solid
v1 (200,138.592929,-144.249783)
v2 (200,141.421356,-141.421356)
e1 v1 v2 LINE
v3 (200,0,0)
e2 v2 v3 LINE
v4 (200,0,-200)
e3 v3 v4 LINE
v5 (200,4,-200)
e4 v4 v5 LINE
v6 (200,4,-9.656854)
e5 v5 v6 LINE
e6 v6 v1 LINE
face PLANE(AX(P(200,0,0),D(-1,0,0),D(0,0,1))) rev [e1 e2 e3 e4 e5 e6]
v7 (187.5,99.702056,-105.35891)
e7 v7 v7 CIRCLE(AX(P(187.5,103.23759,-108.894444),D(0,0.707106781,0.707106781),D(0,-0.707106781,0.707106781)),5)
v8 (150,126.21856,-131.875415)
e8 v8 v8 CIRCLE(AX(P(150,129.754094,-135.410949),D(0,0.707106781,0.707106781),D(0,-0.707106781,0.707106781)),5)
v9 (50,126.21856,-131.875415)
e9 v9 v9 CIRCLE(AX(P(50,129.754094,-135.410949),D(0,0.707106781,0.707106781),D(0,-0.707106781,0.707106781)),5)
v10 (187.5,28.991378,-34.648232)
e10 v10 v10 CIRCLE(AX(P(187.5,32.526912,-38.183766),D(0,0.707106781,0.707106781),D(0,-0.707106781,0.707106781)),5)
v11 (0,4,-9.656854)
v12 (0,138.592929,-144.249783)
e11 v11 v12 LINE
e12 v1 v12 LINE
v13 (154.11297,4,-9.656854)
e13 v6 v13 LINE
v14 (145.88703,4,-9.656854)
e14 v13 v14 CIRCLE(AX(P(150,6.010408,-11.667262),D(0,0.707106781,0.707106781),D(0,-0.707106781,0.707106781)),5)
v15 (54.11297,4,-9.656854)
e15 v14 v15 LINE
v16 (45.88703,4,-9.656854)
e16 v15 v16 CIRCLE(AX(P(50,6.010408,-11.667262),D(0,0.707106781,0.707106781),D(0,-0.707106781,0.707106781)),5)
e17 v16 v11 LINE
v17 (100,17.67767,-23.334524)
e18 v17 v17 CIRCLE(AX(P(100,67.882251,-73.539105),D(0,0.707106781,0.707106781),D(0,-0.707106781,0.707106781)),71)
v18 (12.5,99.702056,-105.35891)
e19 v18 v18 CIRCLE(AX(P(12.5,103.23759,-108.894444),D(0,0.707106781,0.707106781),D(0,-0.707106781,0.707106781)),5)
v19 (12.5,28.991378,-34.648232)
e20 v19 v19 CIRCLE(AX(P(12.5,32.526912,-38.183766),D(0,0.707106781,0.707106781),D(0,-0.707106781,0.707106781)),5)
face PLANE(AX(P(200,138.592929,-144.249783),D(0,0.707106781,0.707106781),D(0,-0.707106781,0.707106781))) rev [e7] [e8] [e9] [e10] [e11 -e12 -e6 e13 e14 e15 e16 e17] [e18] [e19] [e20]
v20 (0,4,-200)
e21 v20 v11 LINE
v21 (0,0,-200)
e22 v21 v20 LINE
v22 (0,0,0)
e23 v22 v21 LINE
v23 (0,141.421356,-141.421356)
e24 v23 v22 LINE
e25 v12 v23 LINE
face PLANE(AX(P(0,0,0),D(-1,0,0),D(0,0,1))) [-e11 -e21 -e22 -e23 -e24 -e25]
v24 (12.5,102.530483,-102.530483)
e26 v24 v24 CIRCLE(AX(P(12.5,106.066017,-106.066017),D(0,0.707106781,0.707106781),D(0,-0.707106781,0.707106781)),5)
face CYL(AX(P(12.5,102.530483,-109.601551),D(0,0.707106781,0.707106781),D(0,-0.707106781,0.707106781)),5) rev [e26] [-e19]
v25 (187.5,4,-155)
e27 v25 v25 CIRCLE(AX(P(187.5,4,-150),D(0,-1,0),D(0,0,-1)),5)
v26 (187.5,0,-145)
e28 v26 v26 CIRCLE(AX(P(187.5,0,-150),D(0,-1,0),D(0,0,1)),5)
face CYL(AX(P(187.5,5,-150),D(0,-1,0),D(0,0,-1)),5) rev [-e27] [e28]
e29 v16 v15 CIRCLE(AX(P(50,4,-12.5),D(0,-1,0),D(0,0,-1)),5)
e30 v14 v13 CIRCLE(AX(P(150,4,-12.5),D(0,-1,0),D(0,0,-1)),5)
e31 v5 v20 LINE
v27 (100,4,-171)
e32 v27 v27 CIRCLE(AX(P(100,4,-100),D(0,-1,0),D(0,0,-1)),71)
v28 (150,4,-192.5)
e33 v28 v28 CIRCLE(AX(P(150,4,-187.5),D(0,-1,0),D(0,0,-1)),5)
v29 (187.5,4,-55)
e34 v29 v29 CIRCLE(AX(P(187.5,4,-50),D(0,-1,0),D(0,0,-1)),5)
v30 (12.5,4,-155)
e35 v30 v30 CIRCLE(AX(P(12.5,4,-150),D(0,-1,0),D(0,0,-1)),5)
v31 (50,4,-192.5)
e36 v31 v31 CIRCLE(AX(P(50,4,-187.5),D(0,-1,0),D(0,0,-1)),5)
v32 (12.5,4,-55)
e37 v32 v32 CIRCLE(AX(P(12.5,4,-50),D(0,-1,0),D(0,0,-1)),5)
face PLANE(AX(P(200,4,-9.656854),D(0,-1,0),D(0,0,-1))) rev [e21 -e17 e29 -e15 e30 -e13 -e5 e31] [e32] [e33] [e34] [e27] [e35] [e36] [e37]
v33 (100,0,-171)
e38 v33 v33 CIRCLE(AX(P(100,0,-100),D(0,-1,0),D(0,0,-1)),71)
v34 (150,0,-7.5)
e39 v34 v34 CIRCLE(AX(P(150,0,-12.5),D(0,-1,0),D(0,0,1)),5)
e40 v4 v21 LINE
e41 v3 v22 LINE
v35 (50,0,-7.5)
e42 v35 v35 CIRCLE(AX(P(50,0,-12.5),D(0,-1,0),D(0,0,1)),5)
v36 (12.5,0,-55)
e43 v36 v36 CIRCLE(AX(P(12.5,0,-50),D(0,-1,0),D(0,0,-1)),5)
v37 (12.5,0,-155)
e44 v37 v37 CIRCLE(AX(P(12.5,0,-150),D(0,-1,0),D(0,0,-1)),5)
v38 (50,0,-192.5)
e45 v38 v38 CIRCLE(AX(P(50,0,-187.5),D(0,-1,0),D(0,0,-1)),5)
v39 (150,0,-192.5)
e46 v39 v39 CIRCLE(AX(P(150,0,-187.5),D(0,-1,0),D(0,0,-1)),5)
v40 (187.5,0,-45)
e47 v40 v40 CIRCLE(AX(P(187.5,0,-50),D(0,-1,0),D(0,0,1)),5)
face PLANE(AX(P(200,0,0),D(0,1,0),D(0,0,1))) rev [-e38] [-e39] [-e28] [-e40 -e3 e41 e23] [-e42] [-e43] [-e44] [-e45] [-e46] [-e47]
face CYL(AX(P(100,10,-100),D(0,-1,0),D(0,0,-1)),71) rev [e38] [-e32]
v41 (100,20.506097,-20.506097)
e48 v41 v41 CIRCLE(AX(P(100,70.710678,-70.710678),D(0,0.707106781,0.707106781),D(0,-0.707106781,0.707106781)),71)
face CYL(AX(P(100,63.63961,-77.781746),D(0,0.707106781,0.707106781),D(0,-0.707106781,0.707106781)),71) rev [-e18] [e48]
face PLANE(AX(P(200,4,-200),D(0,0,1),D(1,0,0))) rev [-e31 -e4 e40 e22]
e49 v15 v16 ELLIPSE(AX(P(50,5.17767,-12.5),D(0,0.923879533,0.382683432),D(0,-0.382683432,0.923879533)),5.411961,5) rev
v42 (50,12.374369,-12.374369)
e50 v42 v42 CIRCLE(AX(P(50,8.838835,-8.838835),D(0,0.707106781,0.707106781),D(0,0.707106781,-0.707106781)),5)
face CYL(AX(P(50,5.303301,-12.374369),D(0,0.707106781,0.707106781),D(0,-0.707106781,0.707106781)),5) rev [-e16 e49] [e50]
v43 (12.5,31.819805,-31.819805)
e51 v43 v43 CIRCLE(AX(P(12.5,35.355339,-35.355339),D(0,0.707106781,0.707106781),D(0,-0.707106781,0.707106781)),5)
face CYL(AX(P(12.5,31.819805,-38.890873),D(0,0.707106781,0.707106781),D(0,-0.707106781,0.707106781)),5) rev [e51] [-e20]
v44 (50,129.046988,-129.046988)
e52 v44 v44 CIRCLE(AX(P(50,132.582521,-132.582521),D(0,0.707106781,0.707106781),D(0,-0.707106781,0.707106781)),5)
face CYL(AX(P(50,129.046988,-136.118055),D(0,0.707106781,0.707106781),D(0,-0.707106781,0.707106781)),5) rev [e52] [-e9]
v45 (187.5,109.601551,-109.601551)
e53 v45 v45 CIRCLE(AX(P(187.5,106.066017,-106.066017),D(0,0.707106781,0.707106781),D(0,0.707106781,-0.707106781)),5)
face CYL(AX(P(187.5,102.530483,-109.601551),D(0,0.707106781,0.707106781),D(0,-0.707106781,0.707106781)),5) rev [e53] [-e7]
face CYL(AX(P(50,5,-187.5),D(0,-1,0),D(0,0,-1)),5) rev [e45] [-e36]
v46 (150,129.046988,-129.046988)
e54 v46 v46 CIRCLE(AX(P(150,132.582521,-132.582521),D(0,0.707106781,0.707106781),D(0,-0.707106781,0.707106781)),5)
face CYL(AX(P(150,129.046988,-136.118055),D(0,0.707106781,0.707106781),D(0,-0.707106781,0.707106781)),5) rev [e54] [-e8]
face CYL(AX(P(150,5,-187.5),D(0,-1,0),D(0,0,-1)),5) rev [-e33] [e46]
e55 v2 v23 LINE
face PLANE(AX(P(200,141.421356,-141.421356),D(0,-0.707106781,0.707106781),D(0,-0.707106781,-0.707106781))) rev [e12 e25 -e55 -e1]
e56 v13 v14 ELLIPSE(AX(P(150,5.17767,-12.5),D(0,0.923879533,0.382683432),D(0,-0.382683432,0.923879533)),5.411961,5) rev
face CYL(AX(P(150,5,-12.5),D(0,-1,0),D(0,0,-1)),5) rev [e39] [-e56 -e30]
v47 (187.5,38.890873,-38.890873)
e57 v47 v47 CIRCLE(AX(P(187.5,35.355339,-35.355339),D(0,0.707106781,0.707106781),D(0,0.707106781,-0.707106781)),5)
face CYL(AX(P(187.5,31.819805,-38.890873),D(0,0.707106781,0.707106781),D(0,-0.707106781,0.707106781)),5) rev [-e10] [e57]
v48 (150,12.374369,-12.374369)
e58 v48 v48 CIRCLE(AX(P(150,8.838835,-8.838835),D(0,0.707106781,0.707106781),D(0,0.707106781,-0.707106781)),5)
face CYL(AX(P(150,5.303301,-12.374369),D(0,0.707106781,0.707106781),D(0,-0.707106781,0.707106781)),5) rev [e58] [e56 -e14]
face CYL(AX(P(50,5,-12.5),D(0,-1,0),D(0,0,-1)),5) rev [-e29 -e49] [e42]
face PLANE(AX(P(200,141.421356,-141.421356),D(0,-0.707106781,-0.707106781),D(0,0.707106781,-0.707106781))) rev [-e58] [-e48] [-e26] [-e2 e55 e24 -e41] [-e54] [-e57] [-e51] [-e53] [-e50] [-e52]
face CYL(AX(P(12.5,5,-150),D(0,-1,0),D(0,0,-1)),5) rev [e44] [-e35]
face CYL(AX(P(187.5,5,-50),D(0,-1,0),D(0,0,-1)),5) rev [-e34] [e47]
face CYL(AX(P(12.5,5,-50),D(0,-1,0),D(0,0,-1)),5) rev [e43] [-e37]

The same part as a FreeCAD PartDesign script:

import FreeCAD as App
import Part
import Sketcher
Q = App.Units.Quantity


def add_polygon(sketch, points):
    """Adds a closed chain of lines whose ends are joined by coincident constraints."""
    first, n = sketch.GeometryCount, len(points)
    for a, b in zip(points, points[1:] + points[:1]):
        sketch.addGeometry(Part.LineSegment(App.Vector(*a, 0), App.Vector(*b, 0)), False)
    for i in range(n):
        sketch.addConstraint(Sketcher.Constraint("Coincident", first + i, 2, first + (i + 1) % n, 1))

doc = App.newDocument("Part")
body = doc.addObject("PartDesign::Body", "Body")

sketch1 = body.newObject("Sketcher::SketchObject", "Sketch")
sketch1.AttachmentSupport = (doc.getObject("YZ_Plane"), [""])
sketch1.MapMode = "FlatFace"
add_polygon(sketch1, [(141.4, -141.4), (0, 0), (0, -200), (4, -200), (4, -9.7), (138.6, -144.2)])
sketch1.addConstraint(Sketcher.Constraint("Vertical", 1))
sketch1.addConstraint(Sketcher.Constraint("Horizontal", 2))
sketch1.addConstraint(Sketcher.Constraint("Vertical", 3))
sketch1.addConstraint(Sketcher.Constraint("Coincident", 0, 2, -1, 1))
sketch1.addConstraint(Sketcher.Constraint("Parallel", 0, 4))
sketch1.addConstraint(Sketcher.Constraint("Perpendicular", 4, 5))
sketch1.addConstraint(Sketcher.Constraint("DistanceX", 2, 1, 2, 2, 4.0))
sketch1.addConstraint(Sketcher.Constraint("DistanceY", 1, 2, 1, 1, 200.0))
sketch1.addConstraint(Sketcher.Constraint("Angle", 0, Q("135 deg")))
sketch1.addConstraint(Sketcher.Constraint("Distance", 0, 200.0))
sketch1.addConstraint(Sketcher.Constraint("Distance", 5, 4.0))
pad1 = body.newObject("PartDesign::Pad", "Pad")
pad1.Profile = sketch1
pad1.Length = 200

sketch2 = body.newObject("Sketcher::SketchObject", "Sketch001")
sketch2.Placement = App.Placement(App.Vector(0, 0, 0), App.Rotation(App.Vector(1, 0, 0), App.Vector(0, 0.707106781, -0.707106781), App.Vector(0, 0.707106781, 0.707106781), "ZXY"))
sketch2.addGeometry(Part.Circle(App.Vector(12, 150, 0), App.Vector(0, 0, 1), 5), False)
sketch2.addGeometry(Part.Circle(App.Vector(12, 50, 0), App.Vector(0, 0, 1), 5), False)
sketch2.addGeometry(Part.Circle(App.Vector(50, 187, 0), App.Vector(0, 0, 1), 5), False)
sketch2.addGeometry(Part.Circle(App.Vector(150, 187, 0), App.Vector(0, 0, 1), 5), False)
sketch2.addGeometry(Part.Circle(App.Vector(188, 50, 0), App.Vector(0, 0, 1), 5), False)
sketch2.addGeometry(Part.Circle(App.Vector(188, 150, 0), App.Vector(0, 0, 1), 5), False)
sketch2.addGeometry(Part.Circle(App.Vector(150, 12, 0), App.Vector(0, 0, 1), 5), False)
sketch2.addGeometry(Part.Circle(App.Vector(50, 12, 0), App.Vector(0, 0, 1), 5), False)
sketch2.addConstraint(Sketcher.Constraint("Equal", 0, 1))
sketch2.addConstraint(Sketcher.Constraint("Equal", 1, 2))
sketch2.addConstraint(Sketcher.Constraint("Equal", 2, 3))
sketch2.addConstraint(Sketcher.Constraint("Equal", 3, 4))
sketch2.addConstraint(Sketcher.Constraint("Equal", 4, 5))
sketch2.addConstraint(Sketcher.Constraint("Equal", 5, 6))
sketch2.addConstraint(Sketcher.Constraint("Equal", 6, 7))
sketch2.addConstraint(Sketcher.Constraint("Horizontal", 2, 3, 3, 3))
sketch2.addConstraint(Sketcher.Constraint("Horizontal", 1, 3, 4, 3))
sketch2.addConstraint(Sketcher.Constraint("Horizontal", 0, 3, 5, 3))
sketch2.addConstraint(Sketcher.Constraint("Horizontal", 6, 3, 7, 3))
sketch2.addConstraint(Sketcher.Constraint("Vertical", 0, 3, 1, 3))
sketch2.addConstraint(Sketcher.Constraint("Vertical", 4, 3, 5, 3))
sketch2.addConstraint(Sketcher.Constraint("Vertical", 3, 3, 6, 3))
sketch2.addConstraint(Sketcher.Constraint("Vertical", 2, 3, 7, 3))
sketch2.addConstraint(Sketcher.Constraint("Diameter", 0, 10.0))
sketch2.addConstraint(Sketcher.Constraint("DistanceY", -1, 1, 0, 3, 150.0))
sketch2.addConstraint(Sketcher.Constraint("DistanceY", -1, 1, 1, 3, 50.0))
sketch2.addConstraint(Sketcher.Constraint("DistanceX", -1, 1, 2, 3, 50.0))
sketch2.addConstraint(Sketcher.Constraint("DistanceX", -1, 1, 3, 3, 150.0))
sketch2.addConstraint(Sketcher.Constraint("DistanceX", 1, 3, 4, 3, 175.0))
sketch2.addConstraint(Sketcher.Constraint("DistanceY", 6, 3, 3, 3, 175.0))
sketch2.addConstraint(Sketcher.Constraint("DistanceX", -1, 1, 0, 3, 12.5))
sketch2.addConstraint(Sketcher.Constraint("DistanceY", -1, 1, 2, 3, 187.5))
pocket1 = body.newObject("PartDesign::Pocket", "Pocket")
pocket1.Profile = sketch2
pocket1.Length = 5

sketch3 = body.newObject("Sketcher::SketchObject", "Sketch002")
sketch3.AttachmentSupport = (doc.getObject("XZ_Plane"), [""])
sketch3.MapMode = "FlatFace"
sketch3.addGeometry(Part.Circle(App.Vector(12, -50, 0), App.Vector(0, 0, 1), 5), False)
sketch3.addGeometry(Part.Circle(App.Vector(12, -150, 0), App.Vector(0, 0, 1), 5), False)
sketch3.addGeometry(Part.Circle(App.Vector(50, -188, 0), App.Vector(0, 0, 1), 5), False)
sketch3.addGeometry(Part.Circle(App.Vector(150, -188, 0), App.Vector(0, 0, 1), 5), False)
sketch3.addGeometry(Part.Circle(App.Vector(150, -12, 0), App.Vector(0, 0, 1), 5), False)
sketch3.addGeometry(Part.Circle(App.Vector(50, -12, 0), App.Vector(0, 0, 1), 5), False)
sketch3.addGeometry(Part.Circle(App.Vector(188, -150, 0), App.Vector(0, 0, 1), 5), False)
sketch3.addGeometry(Part.Circle(App.Vector(188, -50, 0), App.Vector(0, 0, 1), 5), False)
sketch3.addConstraint(Sketcher.Constraint("Equal", 0, 1))
sketch3.addConstraint(Sketcher.Constraint("Equal", 1, 2))
sketch3.addConstraint(Sketcher.Constraint("Equal", 2, 3))
sketch3.addConstraint(Sketcher.Constraint("Equal", 3, 4))
sketch3.addConstraint(Sketcher.Constraint("Equal", 4, 5))
sketch3.addConstraint(Sketcher.Constraint("Equal", 5, 6))
sketch3.addConstraint(Sketcher.Constraint("Equal", 6, 7))
sketch3.addConstraint(Sketcher.Constraint("Horizontal", 2, 3, 3, 3))
sketch3.addConstraint(Sketcher.Constraint("Horizontal", 4, 3, 5, 3))
sketch3.addConstraint(Sketcher.Constraint("Horizontal", 1, 3, 6, 3))
sketch3.addConstraint(Sketcher.Constraint("Horizontal", 0, 3, 7, 3))
sketch3.addConstraint(Sketcher.Constraint("Vertical", 0, 3, 1, 3))
sketch3.addConstraint(Sketcher.Constraint("Vertical", 3, 3, 4, 3))
sketch3.addConstraint(Sketcher.Constraint("Vertical", 2, 3, 5, 3))
sketch3.addConstraint(Sketcher.Constraint("Vertical", 6, 3, 7, 3))
sketch3.addConstraint(Sketcher.Constraint("Diameter", 0, 10.0))
sketch3.addConstraint(Sketcher.Constraint("DistanceY", 0, 3, -1, 1, 50.0))
sketch3.addConstraint(Sketcher.Constraint("DistanceY", 1, 3, -1, 1, 150.0))
sketch3.addConstraint(Sketcher.Constraint("DistanceX", -1, 1, 2, 3, 50.0))
sketch3.addConstraint(Sketcher.Constraint("DistanceX", -1, 1, 3, 3, 150.0))
sketch3.addConstraint(Sketcher.Constraint("DistanceY", 3, 3, 4, 3, 175.0))
sketch3.addConstraint(Sketcher.Constraint("DistanceX", 1, 3, 6, 3, 175.0))
sketch3.addConstraint(Sketcher.Constraint("DistanceX", -1, 1, 0, 3, 12.5))
sketch3.addConstraint(Sketcher.Constraint("DistanceY", 2, 3, -1, 1, 187.5))
pocket2 = body.newObject("PartDesign::Pocket", "Pocket001")
pocket2.Profile = sketch3
pocket2.Length = 5

sketch4 = body.newObject("Sketcher::SketchObject", "Sketch003")
sketch4.Placement = App.Placement(App.Vector(0, 0, 0), App.Rotation(App.Vector(1, 0, 0), App.Vector(0, 0.707106781, -0.707106781), App.Vector(0, 0.707106781, 0.707106781), "ZXY"))
sketch4.addGeometry(Part.Circle(App.Vector(100, 100, 0), App.Vector(0, 0, 1), 71), False)
sketch4.addConstraint(Sketcher.Constraint("Diameter", 0, 142.0))
sketch4.addConstraint(Sketcher.Constraint("DistanceX", -1, 1, 0, 3, 100.0))
sketch4.addConstraint(Sketcher.Constraint("DistanceY", -1, 1, 0, 3, 100.0))
pocket3 = body.newObject("PartDesign::Pocket", "Pocket002")
pocket3.Profile = sketch4
pocket3.Length = 10

sketch5 = body.newObject("Sketcher::SketchObject", "Sketch004")
sketch5.AttachmentSupport = (doc.getObject("XZ_Plane"), [""])
sketch5.MapMode = "FlatFace"
sketch5.addGeometry(Part.Circle(App.Vector(100, -100, 0), App.Vector(0, 0, 1), 71), False)
sketch5.addConstraint(Sketcher.Constraint("Diameter", 0, 142.0))
sketch5.addConstraint(Sketcher.Constraint("DistanceX", -1, 1, 0, 3, 100.0))
sketch5.addConstraint(Sketcher.Constraint("DistanceY", 0, 3, -1, 1, 100.0))
pocket4 = body.newObject("PartDesign::Pocket", "Pocket003")
pocket4.Profile = sketch5
pocket4.Length = 10

doc.recompute()
